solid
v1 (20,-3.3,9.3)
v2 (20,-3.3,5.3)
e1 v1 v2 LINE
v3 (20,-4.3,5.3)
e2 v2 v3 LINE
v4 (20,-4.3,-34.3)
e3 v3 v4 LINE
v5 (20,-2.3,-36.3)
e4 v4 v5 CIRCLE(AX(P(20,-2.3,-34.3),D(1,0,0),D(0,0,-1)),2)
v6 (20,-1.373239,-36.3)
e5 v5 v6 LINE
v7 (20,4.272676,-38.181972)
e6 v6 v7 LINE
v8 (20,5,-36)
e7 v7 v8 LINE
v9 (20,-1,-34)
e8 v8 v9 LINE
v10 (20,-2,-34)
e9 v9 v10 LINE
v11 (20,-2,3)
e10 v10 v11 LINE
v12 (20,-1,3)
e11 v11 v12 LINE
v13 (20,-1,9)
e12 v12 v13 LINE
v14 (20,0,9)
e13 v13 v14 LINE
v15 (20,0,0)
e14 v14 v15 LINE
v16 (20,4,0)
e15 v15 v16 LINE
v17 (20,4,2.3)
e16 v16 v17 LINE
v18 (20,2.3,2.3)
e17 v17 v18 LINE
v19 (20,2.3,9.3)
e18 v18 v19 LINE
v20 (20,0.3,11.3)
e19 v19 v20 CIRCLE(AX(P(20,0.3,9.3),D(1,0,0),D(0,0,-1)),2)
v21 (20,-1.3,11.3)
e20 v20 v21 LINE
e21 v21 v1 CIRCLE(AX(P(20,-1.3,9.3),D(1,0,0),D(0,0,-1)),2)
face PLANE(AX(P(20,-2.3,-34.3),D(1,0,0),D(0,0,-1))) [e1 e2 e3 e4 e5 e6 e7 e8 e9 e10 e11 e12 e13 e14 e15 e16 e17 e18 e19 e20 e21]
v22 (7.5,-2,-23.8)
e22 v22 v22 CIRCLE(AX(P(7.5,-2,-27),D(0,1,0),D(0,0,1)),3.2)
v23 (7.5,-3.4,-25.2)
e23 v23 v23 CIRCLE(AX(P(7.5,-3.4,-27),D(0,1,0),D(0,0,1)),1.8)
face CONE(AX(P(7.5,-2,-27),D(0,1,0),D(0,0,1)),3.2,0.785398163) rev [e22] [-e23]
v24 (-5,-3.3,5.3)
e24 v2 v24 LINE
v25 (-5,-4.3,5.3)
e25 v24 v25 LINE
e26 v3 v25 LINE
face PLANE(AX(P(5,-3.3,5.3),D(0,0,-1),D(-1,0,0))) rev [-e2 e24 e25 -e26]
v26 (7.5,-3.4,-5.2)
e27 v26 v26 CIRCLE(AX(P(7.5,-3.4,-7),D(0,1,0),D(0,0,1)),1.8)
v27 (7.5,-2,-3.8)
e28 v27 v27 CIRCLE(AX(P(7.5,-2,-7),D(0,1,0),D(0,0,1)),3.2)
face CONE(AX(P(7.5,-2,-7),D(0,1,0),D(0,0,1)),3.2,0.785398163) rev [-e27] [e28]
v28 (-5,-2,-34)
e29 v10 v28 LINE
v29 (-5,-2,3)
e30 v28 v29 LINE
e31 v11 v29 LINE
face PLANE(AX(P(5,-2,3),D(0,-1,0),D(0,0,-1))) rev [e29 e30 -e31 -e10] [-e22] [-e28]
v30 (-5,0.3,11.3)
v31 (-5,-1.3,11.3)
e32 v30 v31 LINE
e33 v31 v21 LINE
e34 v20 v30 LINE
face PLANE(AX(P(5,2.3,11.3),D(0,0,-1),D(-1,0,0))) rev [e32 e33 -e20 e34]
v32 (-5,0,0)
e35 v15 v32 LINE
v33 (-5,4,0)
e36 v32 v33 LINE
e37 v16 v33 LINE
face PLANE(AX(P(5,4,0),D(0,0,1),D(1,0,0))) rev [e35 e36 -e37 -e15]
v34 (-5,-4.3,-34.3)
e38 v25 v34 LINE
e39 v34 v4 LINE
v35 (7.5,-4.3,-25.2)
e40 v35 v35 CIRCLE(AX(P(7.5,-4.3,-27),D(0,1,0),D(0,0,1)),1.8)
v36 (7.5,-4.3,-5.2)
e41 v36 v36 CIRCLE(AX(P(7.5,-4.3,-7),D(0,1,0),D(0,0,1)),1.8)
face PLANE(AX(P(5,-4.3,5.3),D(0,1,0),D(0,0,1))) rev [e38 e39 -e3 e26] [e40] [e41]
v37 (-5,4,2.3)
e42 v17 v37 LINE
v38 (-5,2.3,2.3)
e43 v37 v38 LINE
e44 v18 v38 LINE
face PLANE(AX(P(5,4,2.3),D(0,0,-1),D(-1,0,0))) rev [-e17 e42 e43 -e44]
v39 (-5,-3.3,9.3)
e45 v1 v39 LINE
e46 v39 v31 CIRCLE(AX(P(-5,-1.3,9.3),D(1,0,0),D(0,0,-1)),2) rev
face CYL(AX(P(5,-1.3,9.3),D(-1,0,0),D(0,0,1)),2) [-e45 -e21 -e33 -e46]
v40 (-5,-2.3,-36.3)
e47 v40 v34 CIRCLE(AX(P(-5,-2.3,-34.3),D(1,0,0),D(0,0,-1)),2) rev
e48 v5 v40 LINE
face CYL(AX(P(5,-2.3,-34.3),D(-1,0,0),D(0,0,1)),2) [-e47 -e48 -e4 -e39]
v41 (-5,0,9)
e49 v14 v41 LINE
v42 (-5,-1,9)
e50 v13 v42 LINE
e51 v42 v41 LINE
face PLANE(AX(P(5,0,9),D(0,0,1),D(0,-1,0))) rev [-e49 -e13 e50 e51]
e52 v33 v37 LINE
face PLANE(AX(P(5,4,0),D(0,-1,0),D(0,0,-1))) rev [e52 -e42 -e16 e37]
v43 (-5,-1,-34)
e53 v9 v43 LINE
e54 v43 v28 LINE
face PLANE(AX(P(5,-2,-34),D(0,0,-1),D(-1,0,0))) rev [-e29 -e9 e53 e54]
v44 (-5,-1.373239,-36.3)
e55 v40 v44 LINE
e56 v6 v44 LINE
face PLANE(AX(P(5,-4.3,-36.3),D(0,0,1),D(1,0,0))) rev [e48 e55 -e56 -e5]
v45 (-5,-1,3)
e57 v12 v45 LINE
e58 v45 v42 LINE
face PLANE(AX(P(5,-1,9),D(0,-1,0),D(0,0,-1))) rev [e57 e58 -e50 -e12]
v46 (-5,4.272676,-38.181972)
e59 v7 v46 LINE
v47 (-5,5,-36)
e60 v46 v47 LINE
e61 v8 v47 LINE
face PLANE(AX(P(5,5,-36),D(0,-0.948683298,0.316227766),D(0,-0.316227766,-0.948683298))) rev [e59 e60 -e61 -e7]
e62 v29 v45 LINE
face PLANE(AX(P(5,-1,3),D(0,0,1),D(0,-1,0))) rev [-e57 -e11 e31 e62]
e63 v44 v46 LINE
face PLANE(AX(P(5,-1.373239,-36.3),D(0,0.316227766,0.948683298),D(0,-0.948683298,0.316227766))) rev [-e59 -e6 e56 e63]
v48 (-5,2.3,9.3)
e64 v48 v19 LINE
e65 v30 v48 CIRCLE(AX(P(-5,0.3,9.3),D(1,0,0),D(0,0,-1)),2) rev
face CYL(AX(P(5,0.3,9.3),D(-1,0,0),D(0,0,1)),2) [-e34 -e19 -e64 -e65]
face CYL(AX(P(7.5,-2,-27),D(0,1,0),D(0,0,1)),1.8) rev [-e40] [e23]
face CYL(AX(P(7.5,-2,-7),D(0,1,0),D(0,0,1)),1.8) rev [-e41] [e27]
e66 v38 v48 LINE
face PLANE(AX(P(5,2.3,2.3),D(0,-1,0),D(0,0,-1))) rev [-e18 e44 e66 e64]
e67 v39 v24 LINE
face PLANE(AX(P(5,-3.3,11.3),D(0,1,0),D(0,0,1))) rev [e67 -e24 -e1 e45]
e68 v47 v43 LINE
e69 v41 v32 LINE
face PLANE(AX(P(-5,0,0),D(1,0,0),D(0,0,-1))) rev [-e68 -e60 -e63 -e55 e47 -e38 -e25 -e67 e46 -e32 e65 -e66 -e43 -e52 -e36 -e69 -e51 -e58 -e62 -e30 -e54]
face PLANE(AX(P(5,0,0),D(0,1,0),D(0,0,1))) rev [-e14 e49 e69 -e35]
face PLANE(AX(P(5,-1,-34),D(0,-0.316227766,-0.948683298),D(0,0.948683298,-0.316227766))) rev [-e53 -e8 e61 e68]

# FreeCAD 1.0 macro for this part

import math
import FreeCAD as App
import Part
import Sketcher

V = App.Vector
Q = App.Units.Quantity


def edges_at(feature, points):
    """Names of the edges that pass closest to the given points."""
    edges = feature.Shape.Edges
    near = lambda p: min(range(len(edges)), key=lambda i: edges[i].distToShape(Part.Vertex(*p))[0])
    return sorted({f"Edge{near(p) + 1}" for p in points})

doc = App.newDocument("Part")
body = doc.addObject("PartDesign::Body", "Body")

sketch1 = body.newObject("Sketcher::SketchObject", "Sketch")
sketch1.AttachmentSupport = (doc.getObject("YZ_Plane"), [""])
sketch1.MapMode = "FlatFace"
sketch1.addGeometry(Part.LineSegment(V(0, 0, 0), V(4, 0, 0)), False)
sketch1.addGeometry(Part.LineSegment(V(4, 0, 0), V(4, 2.3, 0)), False)
sketch1.addGeometry(Part.LineSegment(V(4, 2.3, 0), V(2.3, 2.3, 0)), False)
sketch1.addGeometry(Part.LineSegment(V(2.3, 2.3, 0), V(2.3, 11.3, 0)), False)
sketch1.addGeometry(Part.LineSegment(V(2.3, 11.3, 0), V(-3.3, 11.3, 0)), False)
sketch1.addGeometry(Part.LineSegment(V(-3.3, 11.3, 0), V(-3.3, 5.3, 0)), False)
sketch1.addGeometry(Part.LineSegment(V(-3.3, 5.3, 0), V(-4.3, 5.3, 0)), False)
sketch1.addGeometry(Part.LineSegment(V(-4.3, 5.3, 0), V(-4.3, -36.3, 0)), False)
sketch1.addGeometry(Part.LineSegment(V(-4.3, -36.3, 0), V(-1.4, -36.3, 0)), False)
sketch1.addGeometry(Part.LineSegment(V(-1.4, -36.3, 0), V(4.3, -38.2, 0)), False)
sketch1.addGeometry(Part.LineSegment(V(4.3, -38.2, 0), V(5, -36, 0)), False)
sketch1.addGeometry(Part.LineSegment(V(5, -36, 0), V(-1, -34, 0)), False)
sketch1.addGeometry(Part.LineSegment(V(-1, -34, 0), V(-2, -34, 0)), False)
sketch1.addGeometry(Part.LineSegment(V(-2, -34, 0), V(-2, 3, 0)), False)
sketch1.addGeometry(Part.LineSegment(V(-2, 3, 0), V(-1, 3, 0)), False)
sketch1.addGeometry(Part.LineSegment(V(-1, 3, 0), V(-1, 9, 0)), False)
sketch1.addGeometry(Part.LineSegment(V(-1, 9, 0), V(0, 9, 0)), False)
sketch1.addGeometry(Part.LineSegment(V(0, 9, 0), V(0, 0, 0)), False)
sketch1.addConstraint(Sketcher.Constraint("Coincident", 0, 2, 1, 1))
sketch1.addConstraint(Sketcher.Constraint("Coincident", 1, 2, 2, 1))
sketch1.addConstraint(Sketcher.Constraint("Coincident", 2, 2, 3, 1))
sketch1.addConstraint(Sketcher.Constraint("Coincident", 3, 2, 4, 1))
sketch1.addConstraint(Sketcher.Constraint("Coincident", 4, 2, 5, 1))
sketch1.addConstraint(Sketcher.Constraint("Coincident", 5, 2, 6, 1))
sketch1.addConstraint(Sketcher.Constraint("Coincident", 6, 2, 7, 1))
sketch1.addConstraint(Sketcher.Constraint("Coincident", 7, 2, 8, 1))
sketch1.addConstraint(Sketcher.Constraint("Coincident", 8, 2, 9, 1))
sketch1.addConstraint(Sketcher.Constraint("Coincident", 9, 2, 10, 1))
sketch1.addConstraint(Sketcher.Constraint("Coincident", 10, 2, 11, 1))
sketch1.addConstraint(Sketcher.Constraint("Coincident", 11, 2, 12, 1))
sketch1.addConstraint(Sketcher.Constraint("Coincident", 12, 2, 13, 1))
sketch1.addConstraint(Sketcher.Constraint("Coincident", 13, 2, 14, 1))
sketch1.addConstraint(Sketcher.Constraint("Coincident", 14, 2, 15, 1))
sketch1.addConstraint(Sketcher.Constraint("Coincident", 15, 2, 16, 1))
sketch1.addConstraint(Sketcher.Constraint("Coincident", 16, 2, 17, 1))
sketch1.addConstraint(Sketcher.Constraint("Coincident", 17, 2, 0, 1))
sketch1.addConstraint(Sketcher.Constraint("Horizontal", 0))
sketch1.addConstraint(Sketcher.Constraint("Vertical", 1))
sketch1.addConstraint(Sketcher.Constraint("Horizontal", 2))
sketch1.addConstraint(Sketcher.Constraint("Vertical", 3))
sketch1.addConstraint(Sketcher.Constraint("Horizontal", 4))
sketch1.addConstraint(Sketcher.Constraint("Vertical", 5))
sketch1.addConstraint(Sketcher.Constraint("Horizontal", 6))
sketch1.addConstraint(Sketcher.Constraint("Vertical", 7))
sketch1.addConstraint(Sketcher.Constraint("Horizontal", 8))
sketch1.addConstraint(Sketcher.Constraint("Horizontal", 12))
sketch1.addConstraint(Sketcher.Constraint("Vertical", 13))
sketch1.addConstraint(Sketcher.Constraint("Horizontal", 14))
sketch1.addConstraint(Sketcher.Constraint("Vertical", 15))
sketch1.addConstraint(Sketcher.Constraint("Horizontal", 16))
sketch1.addConstraint(Sketcher.Constraint("Vertical", 17))
sketch1.addConstraint(Sketcher.Constraint("Coincident", 17, 2, -1, 1))
sketch1.addConstraint(Sketcher.Constraint("Perpendicular", 9, 10))
sketch1.addConstraint(Sketcher.Constraint("Perpendicular", 10, 11))
sketch1.addConstraint(Sketcher.Constraint("Vertical", 11, 2, 14, 2))
sketch1.addConstraint(Sketcher.Constraint("Equal", 6, 12))
sketch1.addConstraint(Sketcher.Constraint("Equal", 14, 16))
sketch1.addConstraint(Sketcher.Constraint("Equal", 5, 15))
sketch1.addConstraint(Sketcher.Constraint("Equal", 3, 17))
sketch1.addConstraint(Sketcher.Constraint("DistanceX", 0, 1, 0, 2, 4.0))
sketch1.addConstraint(Sketcher.Constraint("DistanceX", 6, 2, 6, 1, 1.0))
sketch1.addConstraint(Sketcher.Constraint("DistanceY", 3, 1, 3, 2, 9.0))
sketch1.addConstraint(Sketcher.Constraint("DistanceY", 5, 2, 5, 1, 6.0))
sketch1.addConstraint(Sketcher.Constraint("DistanceY", 13, 1, 13, 2, 37.0))
sketch1.addConstraint(Sketcher.Constraint("DistanceX", 2, 2, 2, 1, 1.7))
sketch1.addConstraint(Sketcher.Constraint("DistanceX", 4, 2, 4, 1, 5.6))
sketch1.addConstraint(Sketcher.Constraint("DistanceY", 1, 1, 1, 2, 2.3))
sketch1.addConstraint(Sketcher.Constraint("DistanceY", 7, 2, 7, 1, 41.6))
sketch1.addConstraint(Sketcher.Constraint("DistanceX", -1, 1, 10, 2, 5.0))
sketch1.addConstraint(Sketcher.Constraint("DistanceY", 10, 2, -1, 1, 36.0))
sketch1.addConstraint(Sketcher.Constraint("Distance", 10, 2.3))
pad1 = body.newObject("PartDesign::Pad", "Pad")
pad1.Profile = sketch1
pad1.Length = 10
pad1.Midplane = True
doc.recompute()

fillet = body.newObject("PartDesign::Fillet", "Fillet")
fillet.Base = (pad1, edges_at(pad1, [(0, -4.3, -36.3), (0, -3.3, 11.3), (0, 2.3, 11.3)]))
fillet.Radius = 2

sketch2 = body.newObject("Sketcher::SketchObject", "Sketch001")
sketch2.AttachmentSupport = (doc.getObject("YZ_Plane"), [""])
sketch2.MapMode = "FlatFace"
sketch2.AttachmentOffset = App.Placement(V(0, 0, 5), App.Rotation())
sketch2.addGeometry(Part.LineSegment(V(-4.3, 5.3, 0), V(-4.3, -34.3, 0)), False)
sketch2.addGeometry(Part.ArcOfCircle(Part.Circle(V(-2.3, -34.3, 0), V(0, 0, 1), 2), math.radians(-180), math.radians(-90)), False)
sketch2.addGeometry(Part.LineSegment(V(-2.3, -36.3, 0), V(-1.4, -36.3, 0)), False)
sketch2.addGeometry(Part.LineSegment(V(-1.4, -36.3, 0), V(4.3, -38.2, 0)), False)
sketch2.addGeometry(Part.LineSegment(V(4.3, -38.2, 0), V(5, -36, 0)), False)
sketch2.addGeometry(Part.LineSegment(V(5, -36, 0), V(-1, -34, 0)), False)
sketch2.addGeometry(Part.LineSegment(V(-1, -34, 0), V(-2, -34, 0)), False)
sketch2.addGeometry(Part.LineSegment(V(-2, -34, 0), V(-2, 3, 0)), False)
sketch2.addGeometry(Part.LineSegment(V(-2, 3, 0), V(-1, 3, 0)), False)
sketch2.addGeometry(Part.LineSegment(V(-1, 3, 0), V(-1, 9, 0)), False)
sketch2.addGeometry(Part.LineSegment(V(-1, 9, 0), V(0, 9, 0)), False)
sketch2.addGeometry(Part.LineSegment(V(0, 9, 0), V(0, 0, 0)), False)
sketch2.addGeometry(Part.LineSegment(V(0, 0, 0), V(4, 0, 0)), False)
sketch2.addGeometry(Part.LineSegment(V(4, 0, 0), V(4, 2.3, 0)), False)
sketch2.addGeometry(Part.LineSegment(V(4, 2.3, 0), V(2.3, 2.3, 0)), False)
sketch2.addGeometry(Part.LineSegment(V(2.3, 2.3, 0), V(2.3, 9.3, 0)), False)
sketch2.addGeometry(Part.ArcOfCircle(Part.Circle(V(0.3, 9.3, 0), V(0, 0, 1), 2), math.radians(0), math.radians(90)), False)
sketch2.addGeometry(Part.LineSegment(V(0.3, 11.3, 0), V(-1.3, 11.3, 0)), False)
sketch2.addGeometry(Part.ArcOfCircle(Part.Circle(V(-1.3, 9.3, 0), V(0, 0, 1), 2), math.radians(90), math.radians(180)), False)
sketch2.addGeometry(Part.LineSegment(V(-3.3, 9.3, 0), V(-3.3, 5.3, 0)), False)
sketch2.addGeometry(Part.LineSegment(V(-3.3, 5.3, 0), V(-4.3, 5.3, 0)), False)
sketch2.addConstraint(Sketcher.Constraint("Tangent", 0, 2, 1, 1))
sketch2.addConstraint(Sketcher.Constraint("Tangent", 1, 2, 2, 1))
sketch2.addConstraint(Sketcher.Constraint("Coincident", 2, 2, 3, 1))
sketch2.addConstraint(Sketcher.Constraint("Coincident", 3, 2, 4, 1))
sketch2.addConstraint(Sketcher.Constraint("Coincident", 4, 2, 5, 1))
sketch2.addConstraint(Sketcher.Constraint("Coincident", 5, 2, 6, 1))
sketch2.addConstraint(Sketcher.Constraint("Coincident", 6, 2, 7, 1))
sketch2.addConstraint(Sketcher.Constraint("Coincident", 7, 2, 8, 1))
sketch2.addConstraint(Sketcher.Constraint("Coincident", 8, 2, 9, 1))
sketch2.addConstraint(Sketcher.Constraint("Coincident", 9, 2, 10, 1))
sketch2.addConstraint(Sketcher.Constraint("Coincident", 10, 2, 11, 1))
sketch2.addConstraint(Sketcher.Constraint("Coincident", 11, 2, 12, 1))
sketch2.addConstraint(Sketcher.Constraint("Coincident", 12, 2, 13, 1))
sketch2.addConstraint(Sketcher.Constraint("Coincident", 13, 2, 14, 1))
sketch2.addConstraint(Sketcher.Constraint("Coincident", 14, 2, 15, 1))
sketch2.addConstraint(Sketcher.Constraint("Tangent", 15, 2, 16, 1))
sketch2.addConstraint(Sketcher.Constraint("Tangent", 16, 2, 17, 1))
sketch2.addConstraint(Sketcher.Constraint("Tangent", 17, 2, 18, 1))
sketch2.addConstraint(Sketcher.Constraint("Tangent", 18, 2, 19, 1))
sketch2.addConstraint(Sketcher.Constraint("Coincident", 19, 2, 20, 1))
sketch2.addConstraint(Sketcher.Constraint("Coincident", 20, 2, 0, 1))
sketch2.addConstraint(Sketcher.Constraint("Vertical", 0))
sketch2.addConstraint(Sketcher.Constraint("Horizontal", 2))
sketch2.addConstraint(Sketcher.Constraint("Horizontal", 6))
sketch2.addConstraint(Sketcher.Constraint("Vertical", 7))
sketch2.addConstraint(Sketcher.Constraint("Horizontal", 8))
sketch2.addConstraint(Sketcher.Constraint("Vertical", 9))
sketch2.addConstraint(Sketcher.Constraint("Horizontal", 10))
sketch2.addConstraint(Sketcher.Constraint("Vertical", 11))
sketch2.addConstraint(Sketcher.Constraint("Horizontal", 12))
sketch2.addConstraint(Sketcher.Constraint("Vertical", 13))
sketch2.addConstraint(Sketcher.Constraint("Horizontal", 14))
sketch2.addConstraint(Sketcher.Constraint("Vertical", 15))
sketch2.addConstraint(Sketcher.Constraint("Horizontal", 17))
sketch2.addConstraint(Sketcher.Constraint("Vertical", 19))
sketch2.addConstraint(Sketcher.Constraint("Horizontal", 20))
sketch2.addConstraint(Sketcher.Constraint("Coincident", 11, 2, -1, 1))
sketch2.addConstraint(Sketcher.Constraint("Equal", 1, 16))
sketch2.addConstraint(Sketcher.Constraint("Equal", 16, 18))
sketch2.addConstraint(Sketcher.Constraint("Perpendicular", 3, 4))
sketch2.addConstraint(Sketcher.Constraint("Perpendicular", 4, 5))
sketch2.addConstraint(Sketcher.Constraint("Vertical", 5, 2, 8, 2))
sketch2.addConstraint(Sketcher.Constraint("Equal", 8, 10))
sketch2.addConstraint(Sketcher.Constraint("Equal", 10, 20))
sketch2.addConstraint(Sketcher.Constraint("Equal", 12, 19))
sketch2.addConstraint(Sketcher.Constraint("Radius", 1, 2.0))
sketch2.addConstraint(Sketcher.Constraint("DistanceX", 6, 2, 6, 1, 1.0))
sketch2.addConstraint(Sketcher.Constraint("DistanceX", 12, 1, 12, 2, 4.0))
sketch2.addConstraint(Sketcher.Constraint("DistanceY", 7, 1, 7, 2, 37.0))
sketch2.addConstraint(Sketcher.Constraint("DistanceY", 9, 1, 9, 2, 6.0))
sketch2.addConstraint(Sketcher.Constraint("DistanceY", 11, 2, 11, 1, 9.0))
sketch2.addConstraint(Sketcher.Constraint("DistanceY", 15, 1, 15, 2, 7.0))
sketch2.addConstraint(Sketcher.Constraint("DistanceX", 14, 2, 14, 1, 1.7))
sketch2.addConstraint(Sketcher.Constraint("DistanceX", 17, 2, 17, 1, 1.6))
sketch2.addConstraint(Sketcher.Constraint("DistanceY", 0, 2, 0, 1, 39.6))
sketch2.addConstraint(Sketcher.Constraint("DistanceY", 13, 1, 13, 2, 2.3))
sketch2.addConstraint(Sketcher.Constraint("DistanceX", -1, 1, 4, 2, 5.0))
sketch2.addConstraint(Sketcher.Constraint("DistanceY", 4, 2, -1, 1, 36.0))
sketch2.addConstraint(Sketcher.Constraint("Distance", 4, 2.3))
pad2 = body.newObject("PartDesign::Pad", "Pad001")
pad2.Profile = sketch2
pad2.Length = 15

sketch3 = body.newObject("Sketcher::SketchObject", "Sketch002")
sketch3.AttachmentSupport = (doc.getObject("YZ_Plane"), [""])
sketch3.MapMode = "FlatFace"
sketch3.AttachmentOffset = App.Placement(V(0, 0, 7.5), App.Rotation())
sketch3.addGeometry(Part.LineSegment(V(-4.3, -27, 0), V(-2, -27, 0)), False)
sketch3.addGeometry(Part.LineSegment(V(-2, -27, 0), V(-2, -23.8, 0)), False)
sketch3.addGeometry(Part.LineSegment(V(-2, -23.8, 0), V(-3.4, -25.2, 0)), False)
sketch3.addGeometry(Part.LineSegment(V(-3.4, -25.2, 0), V(-4.3, -25.2, 0)), False)
sketch3.addGeometry(Part.LineSegment(V(-4.3, -25.2, 0), V(-4.3, -27, 0)), False)
sketch3.addGeometry(Part.LineSegment(V(-2, -27, 0), V(-4.3, -27, 0)), True)
sketch3.addConstraint(Sketcher.Constraint("Coincident", 0, 2, 1, 1))
sketch3.addConstraint(Sketcher.Constraint("Coincident", 1, 2, 2, 1))
sketch3.addConstraint(Sketcher.Constraint("Coincident", 2, 2, 3, 1))
sketch3.addConstraint(Sketcher.Constraint("Coincident", 3, 2, 4, 1))
sketch3.addConstraint(Sketcher.Constraint("Coincident", 4, 2, 0, 1))
sketch3.addConstraint(Sketcher.Constraint("Horizontal", 0))
sketch3.addConstraint(Sketcher.Constraint("Vertical", 1))
sketch3.addConstraint(Sketcher.Constraint("Horizontal", 3))
sketch3.addConstraint(Sketcher.Constraint("Vertical", 4))
sketch3.addConstraint(Sketcher.Constraint("Horizontal", 5))
sketch3.addConstraint(Sketcher.Constraint("Coincident", 5, 1, 0, 2))
sketch3.addConstraint(Sketcher.Constraint("Vertical", 3, 2, 5, 2))
sketch3.addConstraint(Sketcher.Constraint("Angle", 2, Q("-135 deg")))
sketch3.addConstraint(Sketcher.Constraint("DistanceX", 0, 1, 0, 2, 2.3))
sketch3.addConstraint(Sketcher.Constraint("DistanceX", 3, 2, 3, 1, 0.9))
sketch3.addConstraint(Sketcher.Constraint("DistanceY", 1, 1, 1, 2, 3.2))
sketch3.addConstraint(Sketcher.Constraint("DistanceX", 0, 2, -1, 1, 2.0))
sketch3.addConstraint(Sketcher.Constraint("DistanceY", 0, 2, -1, 1, 27.0))
groove = body.newObject("PartDesign::Groove", "Groove")
groove.Profile = sketch3
groove.ReferenceAxis = (sketch3, ["Axis0"])
groove.Angle = 360
doc.recompute()

linearpattern = body.newObject("PartDesign::LinearPattern", "LinearPattern")
linearpattern.Originals = [groove]
linearpattern.Direction = (doc.getObject("Z_Axis"), [""])
linearpattern.Mode = "offset"
linearpattern.Offset = 20
linearpattern.Occurrences = 2
body.Tip = linearpattern

doc.recompute()
